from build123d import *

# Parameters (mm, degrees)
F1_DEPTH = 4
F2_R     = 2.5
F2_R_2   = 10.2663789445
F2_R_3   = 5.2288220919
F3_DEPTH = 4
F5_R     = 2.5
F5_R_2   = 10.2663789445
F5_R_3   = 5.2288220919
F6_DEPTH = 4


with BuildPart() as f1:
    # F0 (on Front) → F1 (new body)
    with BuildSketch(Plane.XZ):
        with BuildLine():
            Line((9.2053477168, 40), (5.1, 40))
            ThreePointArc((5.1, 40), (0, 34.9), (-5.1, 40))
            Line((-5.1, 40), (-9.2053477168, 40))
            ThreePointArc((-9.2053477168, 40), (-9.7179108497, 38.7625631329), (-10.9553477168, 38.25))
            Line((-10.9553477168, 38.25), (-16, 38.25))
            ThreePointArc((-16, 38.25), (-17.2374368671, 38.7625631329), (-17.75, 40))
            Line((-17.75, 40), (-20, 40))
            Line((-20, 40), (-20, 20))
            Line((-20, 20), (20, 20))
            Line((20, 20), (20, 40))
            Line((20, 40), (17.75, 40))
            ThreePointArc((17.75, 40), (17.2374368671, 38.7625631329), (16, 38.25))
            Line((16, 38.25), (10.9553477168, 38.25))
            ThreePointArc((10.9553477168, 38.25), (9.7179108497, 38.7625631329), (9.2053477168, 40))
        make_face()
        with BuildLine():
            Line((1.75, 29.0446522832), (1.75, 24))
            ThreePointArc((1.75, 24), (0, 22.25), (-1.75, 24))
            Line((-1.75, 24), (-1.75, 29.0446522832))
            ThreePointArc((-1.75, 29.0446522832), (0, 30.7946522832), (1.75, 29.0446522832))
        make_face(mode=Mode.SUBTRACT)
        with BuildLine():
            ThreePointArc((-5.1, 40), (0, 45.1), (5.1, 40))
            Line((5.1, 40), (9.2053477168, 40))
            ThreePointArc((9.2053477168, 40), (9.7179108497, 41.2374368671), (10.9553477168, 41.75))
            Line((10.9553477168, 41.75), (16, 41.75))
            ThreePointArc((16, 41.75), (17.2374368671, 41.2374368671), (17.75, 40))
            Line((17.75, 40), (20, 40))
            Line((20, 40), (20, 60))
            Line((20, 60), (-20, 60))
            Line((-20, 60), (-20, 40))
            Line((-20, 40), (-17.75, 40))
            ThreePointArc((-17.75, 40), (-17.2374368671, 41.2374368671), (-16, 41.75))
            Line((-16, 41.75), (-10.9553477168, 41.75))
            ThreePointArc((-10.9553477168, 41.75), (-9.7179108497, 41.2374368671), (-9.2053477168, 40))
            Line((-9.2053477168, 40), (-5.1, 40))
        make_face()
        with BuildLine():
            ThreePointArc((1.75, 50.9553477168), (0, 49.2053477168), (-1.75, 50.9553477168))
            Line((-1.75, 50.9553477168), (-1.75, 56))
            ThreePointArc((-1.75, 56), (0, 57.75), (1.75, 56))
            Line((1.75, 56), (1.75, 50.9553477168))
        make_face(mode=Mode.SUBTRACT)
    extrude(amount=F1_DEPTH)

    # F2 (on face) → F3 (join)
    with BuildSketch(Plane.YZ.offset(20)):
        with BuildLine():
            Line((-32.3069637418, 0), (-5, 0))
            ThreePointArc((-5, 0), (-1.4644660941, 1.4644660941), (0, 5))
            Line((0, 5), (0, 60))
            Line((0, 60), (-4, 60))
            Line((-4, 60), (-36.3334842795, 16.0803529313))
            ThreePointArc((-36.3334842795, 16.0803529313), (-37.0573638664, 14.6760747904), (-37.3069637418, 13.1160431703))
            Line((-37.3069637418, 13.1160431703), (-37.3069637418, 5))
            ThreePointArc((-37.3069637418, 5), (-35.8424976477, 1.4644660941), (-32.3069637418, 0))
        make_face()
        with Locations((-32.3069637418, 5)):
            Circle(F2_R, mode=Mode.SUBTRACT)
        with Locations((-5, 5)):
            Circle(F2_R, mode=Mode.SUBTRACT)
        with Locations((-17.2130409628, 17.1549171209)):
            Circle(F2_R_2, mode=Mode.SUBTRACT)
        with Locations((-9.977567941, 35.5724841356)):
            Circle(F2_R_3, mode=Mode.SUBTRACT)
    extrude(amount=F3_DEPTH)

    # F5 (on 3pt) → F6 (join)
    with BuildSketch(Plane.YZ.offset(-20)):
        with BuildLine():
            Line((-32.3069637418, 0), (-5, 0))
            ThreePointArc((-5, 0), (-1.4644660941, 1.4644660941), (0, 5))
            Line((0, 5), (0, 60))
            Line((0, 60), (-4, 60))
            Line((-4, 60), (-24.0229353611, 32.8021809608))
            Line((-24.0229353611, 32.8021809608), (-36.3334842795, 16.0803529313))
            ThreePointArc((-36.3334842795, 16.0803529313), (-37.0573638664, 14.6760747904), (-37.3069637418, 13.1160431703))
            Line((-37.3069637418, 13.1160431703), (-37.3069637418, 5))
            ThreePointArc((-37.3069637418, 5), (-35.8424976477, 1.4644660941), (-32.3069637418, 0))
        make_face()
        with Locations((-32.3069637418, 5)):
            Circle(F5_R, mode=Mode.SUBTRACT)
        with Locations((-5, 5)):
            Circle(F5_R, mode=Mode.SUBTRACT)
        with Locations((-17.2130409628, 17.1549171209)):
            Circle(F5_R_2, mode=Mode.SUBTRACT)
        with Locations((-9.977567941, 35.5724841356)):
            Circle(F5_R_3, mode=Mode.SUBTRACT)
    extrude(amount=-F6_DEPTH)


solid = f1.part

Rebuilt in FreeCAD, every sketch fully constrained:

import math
import FreeCAD as App
import Part
import Sketcher

V = App.Vector


def add_polygon(sketch, points):
    """Adds a closed chain of lines whose ends are joined by coincident constraints."""
    first, n = sketch.GeometryCount, len(points)
    for a, b in zip(points, points[1:] + points[:1]):
        sketch.addGeometry(Part.LineSegment(App.Vector(*a, 0), App.Vector(*b, 0)), False)
    for i in range(n):
        sketch.addConstraint(Sketcher.Constraint("Coincident", first + i, 2, first + (i + 1) % n, 1))

doc = App.newDocument("Part")
params = doc.addObject("Spreadsheet::Sheet", "Params")
for row, (alias, value) in enumerate([
    ("sketch1_diameter", "10.2 mm"),
    ("sketch1_width", "40 mm"),
    ("sketch1_radius", "1.75 mm"),
    ("pad1_length", "4 mm"),
    ("sketch2_diameter", "5 mm"),
    ("sketch2_radius", "5 mm"),
    ("sketch2_width", "4 mm"),
    ("sketch2_height", "55 mm"),
    ("pad2_length", "4 mm"),
    ("sketch3_diameter", "5 mm"),
    ("sketch3_radius", "5 mm"),
    ("sketch3_width", "4 mm"),
    ("sketch3_height", "55 mm"),
    ("pad3_length", "4 mm"),
], start=1):
    params.set(f"A{row}", alias)
    params.set(f"B{row}", "=" + value)
    params.setAlias(f"B{row}", alias)

body = doc.addObject("PartDesign::Body", "Body")

# Sketch on XZ plane
sketch1 = doc.addObject("Sketcher::SketchObject", "Sketch")
body.addObject(sketch1)
sketch1.AttachmentSupport = (doc.XZ_Plane, [""])
sketch1.MapMode = "FlatFace"
add_polygon(sketch1, [(20, 20), (20, 60), (-20, 60), (-20, 20)])  # lines 0-3
sketch1.addGeometry(Part.ArcOfCircle(Part.Circle(V(0, 29, 0), V(0, 0, 1), 1.8), math.radians(0), math.radians(180)), False)  # 4
sketch1.addGeometry(Part.LineSegment(V(1.8, 29, 0), V(1.8, 24, 0)), False)  # 5
sketch1.addGeometry(Part.ArcOfCircle(Part.Circle(V(0, 24, 0), V(0, 0, 1), 1.8), math.radians(180), math.radians(360)), False)  # 6
sketch1.addGeometry(Part.LineSegment(V(-1.8, 24, 0), V(-1.8, 29, 0)), False)  # 7
sketch1.addGeometry(Part.ArcOfCircle(Part.Circle(V(-11, 40, 0), V(0, 0, 1), 1.8), math.radians(-90), math.radians(0)), False)  # 8
sketch1.addGeometry(Part.LineSegment(V(-11, 38.2, 0), V(-16, 38.2, 0)), False)  # 9
sketch1.addGeometry(Part.ArcOfCircle(Part.Circle(V(-16, 40, 0), V(0, 0, 1), 1.8), math.radians(180), math.radians(270)), False)  # 10
sketch1.addGeometry(Part.ArcOfCircle(Part.Circle(V(-16, 40, 0), V(0, 0, 1), 1.8), math.radians(90), math.radians(180)), False)  # 11
sketch1.addGeometry(Part.LineSegment(V(-16, 41.8, 0), V(-11, 41.8, 0)), False)  # 12
sketch1.addGeometry(Part.ArcOfCircle(Part.Circle(V(-11, 40, 0), V(0, 0, 1), 1.8), math.radians(0), math.radians(90)), False)  # 13
sketch1.addGeometry(Part.Circle(V(0, 40, 0), V(0, 0, 1), 5.1), False)  # 14
sketch1.addGeometry(Part.ArcOfCircle(Part.Circle(V(11, 40, 0), V(0, 0, 1), 1.8), math.radians(180), math.radians(270)), False)  # 15
sketch1.addGeometry(Part.ArcOfCircle(Part.Circle(V(11, 40, 0), V(0, 0, 1), 1.8), math.radians(90), math.radians(180)), False)  # 16
sketch1.addGeometry(Part.LineSegment(V(11, 41.8, 0), V(16, 41.8, 0)), False)  # 17
sketch1.addGeometry(Part.ArcOfCircle(Part.Circle(V(16, 40, 0), V(0, 0, 1), 1.8), math.radians(0), math.radians(90)), False)  # 18
sketch1.addGeometry(Part.ArcOfCircle(Part.Circle(V(16, 40, 0), V(0, 0, 1), 1.8), math.radians(-90), math.radians(0)), False)  # 19
sketch1.addGeometry(Part.LineSegment(V(16, 38.2, 0), V(11, 38.2, 0)), False)  # 20
sketch1.addGeometry(Part.LineSegment(V(1.8, 56, 0), V(1.8, 51, 0)), False)  # 21
sketch1.addGeometry(Part.ArcOfCircle(Part.Circle(V(0, 51, 0), V(0, 0, 1), 1.8), math.radians(180), math.radians(360)), False)  # 22
sketch1.addGeometry(Part.LineSegment(V(-1.8, 51, 0), V(-1.8, 56, 0)), False)  # 23
sketch1.addGeometry(Part.ArcOfCircle(Part.Circle(V(0, 56, 0), V(0, 0, 1), 1.8), math.radians(0), math.radians(180)), False)  # 24
sketch1.addConstraint(Sketcher.Constraint("Tangent", 4, 1, 5, 1))
sketch1.addConstraint(Sketcher.Constraint("Tangent", 5, 2, 6, 2))
sketch1.addConstraint(Sketcher.Constraint("Tangent", 6, 1, 7, 1))
sketch1.addConstraint(Sketcher.Constraint("Tangent", 7, 2, 4, 2))
sketch1.addConstraint(Sketcher.Constraint("Tangent", 8, 1, 9, 1))
sketch1.addConstraint(Sketcher.Constraint("Tangent", 9, 2, 10, 2))
sketch1.addConstraint(Sketcher.Constraint("Tangent", 10, 1, 11, 2))
sketch1.addConstraint(Sketcher.Constraint("Tangent", 11, 1, 12, 1))
sketch1.addConstraint(Sketcher.Constraint("Tangent", 12, 2, 13, 2))
sketch1.addConstraint(Sketcher.Constraint("Tangent", 13, 1, 8, 2))
sketch1.addConstraint(Sketcher.Constraint("Tangent", 15, 1, 16, 2))
sketch1.addConstraint(Sketcher.Constraint("Tangent", 16, 1, 17, 1))
sketch1.addConstraint(Sketcher.Constraint("Tangent", 17, 2, 18, 2))
sketch1.addConstraint(Sketcher.Constraint("Tangent", 18, 1, 19, 2))
sketch1.addConstraint(Sketcher.Constraint("Tangent", 19, 1, 20, 1))
sketch1.addConstraint(Sketcher.Constraint("Tangent", 20, 2, 15, 2))
sketch1.addConstraint(Sketcher.Constraint("Tangent", 21, 2, 22, 2))
sketch1.addConstraint(Sketcher.Constraint("Tangent", 22, 1, 23, 1))
sketch1.addConstraint(Sketcher.Constraint("Tangent", 23, 2, 24, 2))
sketch1.addConstraint(Sketcher.Constraint("Tangent", 24, 1, 21, 1))
sketch1.addConstraint(Sketcher.Constraint("Vertical", 0))
sketch1.addConstraint(Sketcher.Constraint("Horizontal", 1))
sketch1.addConstraint(Sketcher.Constraint("Vertical", 2))
sketch1.addConstraint(Sketcher.Constraint("Horizontal", 3))
sketch1.addConstraint(Sketcher.Constraint("Vertical", 5))
sketch1.addConstraint(Sketcher.Constraint("Vertical", 7))
sketch1.addConstraint(Sketcher.Constraint("Horizontal", 9))
sketch1.addConstraint(Sketcher.Constraint("Horizontal", 12))
sketch1.addConstraint(Sketcher.Constraint("Horizontal", 17))
sketch1.addConstraint(Sketcher.Constraint("Horizontal", 20))
sketch1.addConstraint(Sketcher.Constraint("Vertical", 21))
sketch1.addConstraint(Sketcher.Constraint("Vertical", 23))
sketch1.addConstraint(Sketcher.Constraint("Equal", 6, 8))
sketch1.addConstraint(Sketcher.Constraint("Equal", 8, 10))
sketch1.addConstraint(Sketcher.Constraint("Equal", 10, 11))
sketch1.addConstraint(Sketcher.Constraint("Equal", 13, 15))
sketch1.addConstraint(Sketcher.Constraint("Equal", 15, 16))
sketch1.addConstraint(Sketcher.Constraint("Equal", 16, 18))
sketch1.addConstraint(Sketcher.Constraint("Equal", 19, 22))
sketch1.addConstraint(Sketcher.Constraint("Symmetric", 8, 3, 15, 3, -2))
sketch1.addConstraint(Sketcher.Constraint("Symmetric", 10, 1, 18, 1, -2))
sketch1.addConstraint(Sketcher.Constraint("PointOnObject", 4, 3, -2))
sketch1.addConstraint(Sketcher.Constraint("PointOnObject", 14, 3, -2))
sketch1.addConstraint(Sketcher.Constraint("PointOnObject", 22, 3, -2))
sketch1.addConstraint(Sketcher.Constraint("Horizontal", 13, 3, 14, 3))
sketch1.addConstraint(Sketcher.Constraint("Horizontal", 19, 3, 10, 1))
sketch1.addConstraint(Sketcher.Constraint("Horizontal", 10, 1, 13, 1))
sketch1.addConstraint(Sketcher.Constraint("Horizontal", 13, 1, 15, 1))
sketch1.addConstraint(Sketcher.Constraint("Equal", 3, 0))
sketch1.addConstraint(Sketcher.Constraint("Equal", 20, 5))
sketch1.addConstraint(Sketcher.Constraint("Equal", 7, 21))
sketch1.addConstraint(Sketcher.Constraint("Diameter", 14, 10.2))
sketch1.addConstraint(Sketcher.Constraint("DistanceX", 1, 2, 1, 1, 40.0))
sketch1.addConstraint(Sketcher.Constraint("Radius", 4, 1.75))
sketch1.addConstraint(Sketcher.Constraint("DistanceY", -1, 1, 6, 3, 24.0))
sketch1.addConstraint(Sketcher.Constraint("DistanceY", -1, 1, 8, 3, 40.0))
sketch1.addConstraint(Sketcher.Constraint("DistanceX", 10, 3, -1, 1, 16.0))
sketch1.addConstraint(Sketcher.Constraint("DistanceY", -1, 1, 24, 3, 56.0))
sketch1.addConstraint(Sketcher.Constraint("DistanceX", -1, 1, 0, 2, 20.0))
sketch1.addConstraint(Sketcher.Constraint("DistanceY", -1, 1, 0, 2, 60.0))
sketch1.addConstraint(Sketcher.Constraint("DistanceX", 9, 2, 9, 1, 5.044652))
sketch1.setExpression("Constraints[55]", "Params.sketch1_diameter")
sketch1.setExpression("Constraints[56]", "Params.sketch1_width")
sketch1.setExpression("Constraints[57]", "Params.sketch1_radius")
pad1 = doc.addObject("PartDesign::Pad", "Pad")
body.addObject(pad1)
pad1.Profile = sketch1
pad1.setExpression("Length", "Params.pad1_length")

# Sketch on YZ plane
sketch2 = doc.addObject("Sketcher::SketchObject", "Sketch001")
body.addObject(sketch2)
sketch2.AttachmentSupport = (doc.YZ_Plane, [""])
sketch2.MapMode = "FlatFace"
sketch2.AttachmentOffset = App.Placement(V(0, 0, 20), App.Rotation())
sketch2.addGeometry(Part.LineSegment(V(-32.3, 0, 0), V(-5, 0, 0)), False)
sketch2.addGeometry(Part.ArcOfCircle(Part.Circle(V(-5, 5, 0), V(0, 0, 1), 5), math.radians(-90), math.radians(0)), False)
sketch2.addGeometry(Part.LineSegment(V(0, 5, 0), V(0, 60, 0)), False)
sketch2.addGeometry(Part.LineSegment(V(0, 60, 0), V(-4, 60, 0)), False)
sketch2.addGeometry(Part.LineSegment(V(-4, 60, 0), V(-36.3, 16.1, 0)), False)
sketch2.addGeometry(Part.ArcOfCircle(Part.Circle(V(-32.3, 13.1, 0), V(0, 0, 1), 5), math.radians(144), math.radians(180)), False)
sketch2.addGeometry(Part.LineSegment(V(-37.3, 13.1, 0), V(-37.3, 5, 0)), False)
sketch2.addGeometry(Part.ArcOfCircle(Part.Circle(V(-32.3, 5, 0), V(0, 0, 1), 5), math.radians(180), math.radians(270)), False)
sketch2.addGeometry(Part.Circle(V(-32.3, 5, 0), V(0, 0, 1), 2.5), False)
sketch2.addGeometry(Part.Circle(V(-5, 5, 0), V(0, 0, 1), 2.5), False)
sketch2.addGeometry(Part.Circle(V(-17.2, 17.2, 0), V(0, 0, 1), 10.3), False)
sketch2.addGeometry(Part.Circle(V(-10, 35.6, 0), V(0, 0, 1), 5.2), False)
sketch2.addConstraint(Sketcher.Constraint("Tangent", 0, 2, 1, 1))
sketch2.addConstraint(Sketcher.Constraint("Tangent", 1, 2, 2, 1))
sketch2.addConstraint(Sketcher.Constraint("Coincident", 2, 2, 3, 1))
sketch2.addConstraint(Sketcher.Constraint("Coincident", 3, 2, 4, 1))
sketch2.addConstraint(Sketcher.Constraint("Tangent", 4, 2, 5, 1))
sketch2.addConstraint(Sketcher.Constraint("Tangent", 5, 2, 6, 1))
sketch2.addConstraint(Sketcher.Constraint("Tangent", 6, 2, 7, 1))
sketch2.addConstraint(Sketcher.Constraint("Tangent", 7, 2, 0, 1))
sketch2.addConstraint(Sketcher.Constraint("Horizontal", 0))
sketch2.addConstraint(Sketcher.Constraint("Vertical", 2))
sketch2.addConstraint(Sketcher.Constraint("Horizontal", 3))
sketch2.addConstraint(Sketcher.Constraint("Vertical", 6))
sketch2.addConstraint(Sketcher.Constraint("Coincident", 8, 3, 7, 3))
sketch2.addConstraint(Sketcher.Constraint("Coincident", 9, 3, 1, 3))
sketch2.addConstraint(Sketcher.Constraint("Equal", 1, 5))
sketch2.addConstraint(Sketcher.Constraint("Equal", 5, 7))
sketch2.addConstraint(Sketcher.Constraint("Equal", 8, 9))
sketch2.addConstraint(Sketcher.Constraint("PointOnObject", 0, 2, -1))
sketch2.addConstraint(Sketcher.Constraint("PointOnObject", 1, 2, -2))
sketch2.addConstraint(Sketcher.Constraint("Diameter", 8, 5.0))
sketch2.addConstraint(Sketcher.Constraint("Radius", 1, 5.0))
sketch2.addConstraint(Sketcher.Constraint("DistanceX", 3, 2, 3, 1, 4.0))
sketch2.addConstraint(Sketcher.Constraint("DistanceY", 2, 1, 2, 2, 55.0))
sketch2.addConstraint(Sketcher.Constraint("Diameter", 10, 20.532758))
sketch2.addConstraint(Sketcher.Constraint("Diameter", 11, 10.457644))
sketch2.addConstraint(Sketcher.Constraint("DistanceX", 0, 1, 0, 2, 27.306964))
sketch2.addConstraint(Sketcher.Constraint("DistanceY", 6, 2, 6, 1, 8.116043))
sketch2.addConstraint(Sketcher.Constraint("DistanceX", 10, 3, -1, 1, 17.213041))
sketch2.addConstraint(Sketcher.Constraint("DistanceY", 5, 3, 11, 3, 22.456441))
sketch2.addConstraint(Sketcher.Constraint("DistanceY", -1, 1, 10, 3, 17.154917))
sketch2.addConstraint(Sketcher.Constraint("DistanceX", 11, 3, -1, 1, 9.977568))
sketch2.setExpression("Constraints[19]", "Params.sketch2_diameter")
sketch2.setExpression("Constraints[20]", "Params.sketch2_radius")
sketch2.setExpression("Constraints[21]", "Params.sketch2_width")
sketch2.setExpression("Constraints[22]", "Params.sketch2_height")
pad2 = doc.addObject("PartDesign::Pad", "Pad001")
body.addObject(pad2)
pad2.Profile = sketch2
pad2.setExpression("Length", "Params.pad2_length")

# Sketch on YZ plane
sketch3 = doc.addObject("Sketcher::SketchObject", "Sketch002")
body.addObject(sketch3)
sketch3.AttachmentSupport = (doc.YZ_Plane, [""])
sketch3.MapMode = "FlatFace"
sketch3.AttachmentOffset = App.Placement(V(0, 0, -20), App.Rotation())
sketch3.addGeometry(Part.LineSegment(V(-32.3, 0, 0), V(-5, 0, 0)), False)
sketch3.addGeometry(Part.ArcOfCircle(Part.Circle(V(-5, 5, 0), V(0, 0, 1), 5), math.radians(-90), math.radians(0)), False)
sketch3.addGeometry(Part.LineSegment(V(0, 5, 0), V(0, 60, 0)), False)
sketch3.addGeometry(Part.LineSegment(V(0, 60, 0), V(-4, 60, 0)), False)
sketch3.addGeometry(Part.LineSegment(V(-4, 60, 0), V(-24, 32.8, 0)), False)
sketch3.addGeometry(Part.LineSegment(V(-24, 32.8, 0), V(-36.3, 16.1, 0)), False)
sketch3.addGeometry(Part.ArcOfCircle(Part.Circle(V(-32.3, 13.1, 0), V(0, 0, 1), 5), math.radians(144), math.radians(180)), False)
sketch3.addGeometry(Part.LineSegment(V(-37.3, 13.1, 0), V(-37.3, 5, 0)), False)
sketch3.addGeometry(Part.ArcOfCircle(Part.Circle(V(-32.3, 5, 0), V(0, 0, 1), 5), math.radians(180), math.radians(270)), False)
sketch3.addGeometry(Part.Circle(V(-32.3, 5, 0), V(0, 0, 1), 2.5), False)
sketch3.addGeometry(Part.Circle(V(-5, 5, 0), V(0, 0, 1), 2.5), False)
sketch3.addGeometry(Part.Circle(V(-17.2, 17.2, 0), V(0, 0, 1), 10.3), False)
sketch3.addGeometry(Part.Circle(V(-10, 35.6, 0), V(0, 0, 1), 5.2), False)
sketch3.addConstraint(Sketcher.Constraint("Tangent", 0, 2, 1, 1))
sketch3.addConstraint(Sketcher.Constraint("Tangent", 1, 2, 2, 1))
sketch3.addConstraint(Sketcher.Constraint("Coincident", 2, 2, 3, 1))
sketch3.addConstraint(Sketcher.Constraint("Coincident", 3, 2, 4, 1))
sketch3.addConstraint(Sketcher.Constraint("Coincident", 4, 2, 5, 1))
sketch3.addConstraint(Sketcher.Constraint("Tangent", 5, 2, 6, 1))
sketch3.addConstraint(Sketcher.Constraint("Tangent", 6, 2, 7, 1))
sketch3.addConstraint(Sketcher.Constraint("Tangent", 7, 2, 8, 1))
sketch3.addConstraint(Sketcher.Constraint("Tangent", 8, 2, 0, 1))
sketch3.addConstraint(Sketcher.Constraint("Horizontal", 0))
sketch3.addConstraint(Sketcher.Constraint("Vertical", 2))
sketch3.addConstraint(Sketcher.Constraint("Horizontal", 3))
sketch3.addConstraint(Sketcher.Constraint("Vertical", 7))
sketch3.addConstraint(Sketcher.Constraint("Coincident", 9, 3, 8, 3))
sketch3.addConstraint(Sketcher.Constraint("Coincident", 10, 3, 1, 3))
sketch3.addConstraint(Sketcher.Constraint("Equal", 1, 6))
sketch3.addConstraint(Sketcher.Constraint("Equal", 6, 8))
sketch3.addConstraint(Sketcher.Constraint("Equal", 9, 10))
sketch3.addConstraint(Sketcher.Constraint("PointOnObject", 0, 2, -1))
sketch3.addConstraint(Sketcher.Constraint("PointOnObject", 1, 2, -2))
sketch3.addConstraint(Sketcher.Constraint("Parallel", 4, 5))
sketch3.addConstraint(Sketcher.Constraint("Diameter", 9, 5.0))
sketch3.addConstraint(Sketcher.Constraint("Radius", 1, 5.0))
sketch3.addConstraint(Sketcher.Constraint("DistanceX", 3, 2, 3, 1, 4.0))
sketch3.addConstraint(Sketcher.Constraint("DistanceY", 2, 1, 2, 2, 55.0))
sketch3.addConstraint(Sketcher.Constraint("Diameter", 11, 20.532758))
sketch3.addConstraint(Sketcher.Constraint("Diameter", 12, 10.457644))
sketch3.addConstraint(Sketcher.Constraint("Distance", 4, 33.773352))
sketch3.addConstraint(Sketcher.Constraint("DistanceX", 0, 1, 0, 2, 27.306964))
sketch3.addConstraint(Sketcher.Constraint("DistanceY", 7, 2, 7, 1, 8.116043))
sketch3.addConstraint(Sketcher.Constraint("DistanceX", 11, 3, -1, 1, 17.213041))
sketch3.addConstraint(Sketcher.Constraint("DistanceY", 6, 3, 12, 3, 22.456441))
sketch3.addConstraint(Sketcher.Constraint("DistanceY", -1, 1, 11, 3, 17.154917))
sketch3.addConstraint(Sketcher.Constraint("DistanceX", 12, 3, -1, 1, 9.977568))
sketch3.setExpression("Constraints[21]", "Params.sketch3_diameter")
sketch3.setExpression("Constraints[22]", "Params.sketch3_radius")
sketch3.setExpression("Constraints[23]", "Params.sketch3_width")
sketch3.setExpression("Constraints[24]", "Params.sketch3_height")
pad3 = doc.addObject("PartDesign::Pad", "Pad002")
body.addObject(pad3)
pad3.Profile = sketch3
pad3.setExpression("Length", "Params.pad3_length")
pad3.Reversed = True

doc.recompute()
